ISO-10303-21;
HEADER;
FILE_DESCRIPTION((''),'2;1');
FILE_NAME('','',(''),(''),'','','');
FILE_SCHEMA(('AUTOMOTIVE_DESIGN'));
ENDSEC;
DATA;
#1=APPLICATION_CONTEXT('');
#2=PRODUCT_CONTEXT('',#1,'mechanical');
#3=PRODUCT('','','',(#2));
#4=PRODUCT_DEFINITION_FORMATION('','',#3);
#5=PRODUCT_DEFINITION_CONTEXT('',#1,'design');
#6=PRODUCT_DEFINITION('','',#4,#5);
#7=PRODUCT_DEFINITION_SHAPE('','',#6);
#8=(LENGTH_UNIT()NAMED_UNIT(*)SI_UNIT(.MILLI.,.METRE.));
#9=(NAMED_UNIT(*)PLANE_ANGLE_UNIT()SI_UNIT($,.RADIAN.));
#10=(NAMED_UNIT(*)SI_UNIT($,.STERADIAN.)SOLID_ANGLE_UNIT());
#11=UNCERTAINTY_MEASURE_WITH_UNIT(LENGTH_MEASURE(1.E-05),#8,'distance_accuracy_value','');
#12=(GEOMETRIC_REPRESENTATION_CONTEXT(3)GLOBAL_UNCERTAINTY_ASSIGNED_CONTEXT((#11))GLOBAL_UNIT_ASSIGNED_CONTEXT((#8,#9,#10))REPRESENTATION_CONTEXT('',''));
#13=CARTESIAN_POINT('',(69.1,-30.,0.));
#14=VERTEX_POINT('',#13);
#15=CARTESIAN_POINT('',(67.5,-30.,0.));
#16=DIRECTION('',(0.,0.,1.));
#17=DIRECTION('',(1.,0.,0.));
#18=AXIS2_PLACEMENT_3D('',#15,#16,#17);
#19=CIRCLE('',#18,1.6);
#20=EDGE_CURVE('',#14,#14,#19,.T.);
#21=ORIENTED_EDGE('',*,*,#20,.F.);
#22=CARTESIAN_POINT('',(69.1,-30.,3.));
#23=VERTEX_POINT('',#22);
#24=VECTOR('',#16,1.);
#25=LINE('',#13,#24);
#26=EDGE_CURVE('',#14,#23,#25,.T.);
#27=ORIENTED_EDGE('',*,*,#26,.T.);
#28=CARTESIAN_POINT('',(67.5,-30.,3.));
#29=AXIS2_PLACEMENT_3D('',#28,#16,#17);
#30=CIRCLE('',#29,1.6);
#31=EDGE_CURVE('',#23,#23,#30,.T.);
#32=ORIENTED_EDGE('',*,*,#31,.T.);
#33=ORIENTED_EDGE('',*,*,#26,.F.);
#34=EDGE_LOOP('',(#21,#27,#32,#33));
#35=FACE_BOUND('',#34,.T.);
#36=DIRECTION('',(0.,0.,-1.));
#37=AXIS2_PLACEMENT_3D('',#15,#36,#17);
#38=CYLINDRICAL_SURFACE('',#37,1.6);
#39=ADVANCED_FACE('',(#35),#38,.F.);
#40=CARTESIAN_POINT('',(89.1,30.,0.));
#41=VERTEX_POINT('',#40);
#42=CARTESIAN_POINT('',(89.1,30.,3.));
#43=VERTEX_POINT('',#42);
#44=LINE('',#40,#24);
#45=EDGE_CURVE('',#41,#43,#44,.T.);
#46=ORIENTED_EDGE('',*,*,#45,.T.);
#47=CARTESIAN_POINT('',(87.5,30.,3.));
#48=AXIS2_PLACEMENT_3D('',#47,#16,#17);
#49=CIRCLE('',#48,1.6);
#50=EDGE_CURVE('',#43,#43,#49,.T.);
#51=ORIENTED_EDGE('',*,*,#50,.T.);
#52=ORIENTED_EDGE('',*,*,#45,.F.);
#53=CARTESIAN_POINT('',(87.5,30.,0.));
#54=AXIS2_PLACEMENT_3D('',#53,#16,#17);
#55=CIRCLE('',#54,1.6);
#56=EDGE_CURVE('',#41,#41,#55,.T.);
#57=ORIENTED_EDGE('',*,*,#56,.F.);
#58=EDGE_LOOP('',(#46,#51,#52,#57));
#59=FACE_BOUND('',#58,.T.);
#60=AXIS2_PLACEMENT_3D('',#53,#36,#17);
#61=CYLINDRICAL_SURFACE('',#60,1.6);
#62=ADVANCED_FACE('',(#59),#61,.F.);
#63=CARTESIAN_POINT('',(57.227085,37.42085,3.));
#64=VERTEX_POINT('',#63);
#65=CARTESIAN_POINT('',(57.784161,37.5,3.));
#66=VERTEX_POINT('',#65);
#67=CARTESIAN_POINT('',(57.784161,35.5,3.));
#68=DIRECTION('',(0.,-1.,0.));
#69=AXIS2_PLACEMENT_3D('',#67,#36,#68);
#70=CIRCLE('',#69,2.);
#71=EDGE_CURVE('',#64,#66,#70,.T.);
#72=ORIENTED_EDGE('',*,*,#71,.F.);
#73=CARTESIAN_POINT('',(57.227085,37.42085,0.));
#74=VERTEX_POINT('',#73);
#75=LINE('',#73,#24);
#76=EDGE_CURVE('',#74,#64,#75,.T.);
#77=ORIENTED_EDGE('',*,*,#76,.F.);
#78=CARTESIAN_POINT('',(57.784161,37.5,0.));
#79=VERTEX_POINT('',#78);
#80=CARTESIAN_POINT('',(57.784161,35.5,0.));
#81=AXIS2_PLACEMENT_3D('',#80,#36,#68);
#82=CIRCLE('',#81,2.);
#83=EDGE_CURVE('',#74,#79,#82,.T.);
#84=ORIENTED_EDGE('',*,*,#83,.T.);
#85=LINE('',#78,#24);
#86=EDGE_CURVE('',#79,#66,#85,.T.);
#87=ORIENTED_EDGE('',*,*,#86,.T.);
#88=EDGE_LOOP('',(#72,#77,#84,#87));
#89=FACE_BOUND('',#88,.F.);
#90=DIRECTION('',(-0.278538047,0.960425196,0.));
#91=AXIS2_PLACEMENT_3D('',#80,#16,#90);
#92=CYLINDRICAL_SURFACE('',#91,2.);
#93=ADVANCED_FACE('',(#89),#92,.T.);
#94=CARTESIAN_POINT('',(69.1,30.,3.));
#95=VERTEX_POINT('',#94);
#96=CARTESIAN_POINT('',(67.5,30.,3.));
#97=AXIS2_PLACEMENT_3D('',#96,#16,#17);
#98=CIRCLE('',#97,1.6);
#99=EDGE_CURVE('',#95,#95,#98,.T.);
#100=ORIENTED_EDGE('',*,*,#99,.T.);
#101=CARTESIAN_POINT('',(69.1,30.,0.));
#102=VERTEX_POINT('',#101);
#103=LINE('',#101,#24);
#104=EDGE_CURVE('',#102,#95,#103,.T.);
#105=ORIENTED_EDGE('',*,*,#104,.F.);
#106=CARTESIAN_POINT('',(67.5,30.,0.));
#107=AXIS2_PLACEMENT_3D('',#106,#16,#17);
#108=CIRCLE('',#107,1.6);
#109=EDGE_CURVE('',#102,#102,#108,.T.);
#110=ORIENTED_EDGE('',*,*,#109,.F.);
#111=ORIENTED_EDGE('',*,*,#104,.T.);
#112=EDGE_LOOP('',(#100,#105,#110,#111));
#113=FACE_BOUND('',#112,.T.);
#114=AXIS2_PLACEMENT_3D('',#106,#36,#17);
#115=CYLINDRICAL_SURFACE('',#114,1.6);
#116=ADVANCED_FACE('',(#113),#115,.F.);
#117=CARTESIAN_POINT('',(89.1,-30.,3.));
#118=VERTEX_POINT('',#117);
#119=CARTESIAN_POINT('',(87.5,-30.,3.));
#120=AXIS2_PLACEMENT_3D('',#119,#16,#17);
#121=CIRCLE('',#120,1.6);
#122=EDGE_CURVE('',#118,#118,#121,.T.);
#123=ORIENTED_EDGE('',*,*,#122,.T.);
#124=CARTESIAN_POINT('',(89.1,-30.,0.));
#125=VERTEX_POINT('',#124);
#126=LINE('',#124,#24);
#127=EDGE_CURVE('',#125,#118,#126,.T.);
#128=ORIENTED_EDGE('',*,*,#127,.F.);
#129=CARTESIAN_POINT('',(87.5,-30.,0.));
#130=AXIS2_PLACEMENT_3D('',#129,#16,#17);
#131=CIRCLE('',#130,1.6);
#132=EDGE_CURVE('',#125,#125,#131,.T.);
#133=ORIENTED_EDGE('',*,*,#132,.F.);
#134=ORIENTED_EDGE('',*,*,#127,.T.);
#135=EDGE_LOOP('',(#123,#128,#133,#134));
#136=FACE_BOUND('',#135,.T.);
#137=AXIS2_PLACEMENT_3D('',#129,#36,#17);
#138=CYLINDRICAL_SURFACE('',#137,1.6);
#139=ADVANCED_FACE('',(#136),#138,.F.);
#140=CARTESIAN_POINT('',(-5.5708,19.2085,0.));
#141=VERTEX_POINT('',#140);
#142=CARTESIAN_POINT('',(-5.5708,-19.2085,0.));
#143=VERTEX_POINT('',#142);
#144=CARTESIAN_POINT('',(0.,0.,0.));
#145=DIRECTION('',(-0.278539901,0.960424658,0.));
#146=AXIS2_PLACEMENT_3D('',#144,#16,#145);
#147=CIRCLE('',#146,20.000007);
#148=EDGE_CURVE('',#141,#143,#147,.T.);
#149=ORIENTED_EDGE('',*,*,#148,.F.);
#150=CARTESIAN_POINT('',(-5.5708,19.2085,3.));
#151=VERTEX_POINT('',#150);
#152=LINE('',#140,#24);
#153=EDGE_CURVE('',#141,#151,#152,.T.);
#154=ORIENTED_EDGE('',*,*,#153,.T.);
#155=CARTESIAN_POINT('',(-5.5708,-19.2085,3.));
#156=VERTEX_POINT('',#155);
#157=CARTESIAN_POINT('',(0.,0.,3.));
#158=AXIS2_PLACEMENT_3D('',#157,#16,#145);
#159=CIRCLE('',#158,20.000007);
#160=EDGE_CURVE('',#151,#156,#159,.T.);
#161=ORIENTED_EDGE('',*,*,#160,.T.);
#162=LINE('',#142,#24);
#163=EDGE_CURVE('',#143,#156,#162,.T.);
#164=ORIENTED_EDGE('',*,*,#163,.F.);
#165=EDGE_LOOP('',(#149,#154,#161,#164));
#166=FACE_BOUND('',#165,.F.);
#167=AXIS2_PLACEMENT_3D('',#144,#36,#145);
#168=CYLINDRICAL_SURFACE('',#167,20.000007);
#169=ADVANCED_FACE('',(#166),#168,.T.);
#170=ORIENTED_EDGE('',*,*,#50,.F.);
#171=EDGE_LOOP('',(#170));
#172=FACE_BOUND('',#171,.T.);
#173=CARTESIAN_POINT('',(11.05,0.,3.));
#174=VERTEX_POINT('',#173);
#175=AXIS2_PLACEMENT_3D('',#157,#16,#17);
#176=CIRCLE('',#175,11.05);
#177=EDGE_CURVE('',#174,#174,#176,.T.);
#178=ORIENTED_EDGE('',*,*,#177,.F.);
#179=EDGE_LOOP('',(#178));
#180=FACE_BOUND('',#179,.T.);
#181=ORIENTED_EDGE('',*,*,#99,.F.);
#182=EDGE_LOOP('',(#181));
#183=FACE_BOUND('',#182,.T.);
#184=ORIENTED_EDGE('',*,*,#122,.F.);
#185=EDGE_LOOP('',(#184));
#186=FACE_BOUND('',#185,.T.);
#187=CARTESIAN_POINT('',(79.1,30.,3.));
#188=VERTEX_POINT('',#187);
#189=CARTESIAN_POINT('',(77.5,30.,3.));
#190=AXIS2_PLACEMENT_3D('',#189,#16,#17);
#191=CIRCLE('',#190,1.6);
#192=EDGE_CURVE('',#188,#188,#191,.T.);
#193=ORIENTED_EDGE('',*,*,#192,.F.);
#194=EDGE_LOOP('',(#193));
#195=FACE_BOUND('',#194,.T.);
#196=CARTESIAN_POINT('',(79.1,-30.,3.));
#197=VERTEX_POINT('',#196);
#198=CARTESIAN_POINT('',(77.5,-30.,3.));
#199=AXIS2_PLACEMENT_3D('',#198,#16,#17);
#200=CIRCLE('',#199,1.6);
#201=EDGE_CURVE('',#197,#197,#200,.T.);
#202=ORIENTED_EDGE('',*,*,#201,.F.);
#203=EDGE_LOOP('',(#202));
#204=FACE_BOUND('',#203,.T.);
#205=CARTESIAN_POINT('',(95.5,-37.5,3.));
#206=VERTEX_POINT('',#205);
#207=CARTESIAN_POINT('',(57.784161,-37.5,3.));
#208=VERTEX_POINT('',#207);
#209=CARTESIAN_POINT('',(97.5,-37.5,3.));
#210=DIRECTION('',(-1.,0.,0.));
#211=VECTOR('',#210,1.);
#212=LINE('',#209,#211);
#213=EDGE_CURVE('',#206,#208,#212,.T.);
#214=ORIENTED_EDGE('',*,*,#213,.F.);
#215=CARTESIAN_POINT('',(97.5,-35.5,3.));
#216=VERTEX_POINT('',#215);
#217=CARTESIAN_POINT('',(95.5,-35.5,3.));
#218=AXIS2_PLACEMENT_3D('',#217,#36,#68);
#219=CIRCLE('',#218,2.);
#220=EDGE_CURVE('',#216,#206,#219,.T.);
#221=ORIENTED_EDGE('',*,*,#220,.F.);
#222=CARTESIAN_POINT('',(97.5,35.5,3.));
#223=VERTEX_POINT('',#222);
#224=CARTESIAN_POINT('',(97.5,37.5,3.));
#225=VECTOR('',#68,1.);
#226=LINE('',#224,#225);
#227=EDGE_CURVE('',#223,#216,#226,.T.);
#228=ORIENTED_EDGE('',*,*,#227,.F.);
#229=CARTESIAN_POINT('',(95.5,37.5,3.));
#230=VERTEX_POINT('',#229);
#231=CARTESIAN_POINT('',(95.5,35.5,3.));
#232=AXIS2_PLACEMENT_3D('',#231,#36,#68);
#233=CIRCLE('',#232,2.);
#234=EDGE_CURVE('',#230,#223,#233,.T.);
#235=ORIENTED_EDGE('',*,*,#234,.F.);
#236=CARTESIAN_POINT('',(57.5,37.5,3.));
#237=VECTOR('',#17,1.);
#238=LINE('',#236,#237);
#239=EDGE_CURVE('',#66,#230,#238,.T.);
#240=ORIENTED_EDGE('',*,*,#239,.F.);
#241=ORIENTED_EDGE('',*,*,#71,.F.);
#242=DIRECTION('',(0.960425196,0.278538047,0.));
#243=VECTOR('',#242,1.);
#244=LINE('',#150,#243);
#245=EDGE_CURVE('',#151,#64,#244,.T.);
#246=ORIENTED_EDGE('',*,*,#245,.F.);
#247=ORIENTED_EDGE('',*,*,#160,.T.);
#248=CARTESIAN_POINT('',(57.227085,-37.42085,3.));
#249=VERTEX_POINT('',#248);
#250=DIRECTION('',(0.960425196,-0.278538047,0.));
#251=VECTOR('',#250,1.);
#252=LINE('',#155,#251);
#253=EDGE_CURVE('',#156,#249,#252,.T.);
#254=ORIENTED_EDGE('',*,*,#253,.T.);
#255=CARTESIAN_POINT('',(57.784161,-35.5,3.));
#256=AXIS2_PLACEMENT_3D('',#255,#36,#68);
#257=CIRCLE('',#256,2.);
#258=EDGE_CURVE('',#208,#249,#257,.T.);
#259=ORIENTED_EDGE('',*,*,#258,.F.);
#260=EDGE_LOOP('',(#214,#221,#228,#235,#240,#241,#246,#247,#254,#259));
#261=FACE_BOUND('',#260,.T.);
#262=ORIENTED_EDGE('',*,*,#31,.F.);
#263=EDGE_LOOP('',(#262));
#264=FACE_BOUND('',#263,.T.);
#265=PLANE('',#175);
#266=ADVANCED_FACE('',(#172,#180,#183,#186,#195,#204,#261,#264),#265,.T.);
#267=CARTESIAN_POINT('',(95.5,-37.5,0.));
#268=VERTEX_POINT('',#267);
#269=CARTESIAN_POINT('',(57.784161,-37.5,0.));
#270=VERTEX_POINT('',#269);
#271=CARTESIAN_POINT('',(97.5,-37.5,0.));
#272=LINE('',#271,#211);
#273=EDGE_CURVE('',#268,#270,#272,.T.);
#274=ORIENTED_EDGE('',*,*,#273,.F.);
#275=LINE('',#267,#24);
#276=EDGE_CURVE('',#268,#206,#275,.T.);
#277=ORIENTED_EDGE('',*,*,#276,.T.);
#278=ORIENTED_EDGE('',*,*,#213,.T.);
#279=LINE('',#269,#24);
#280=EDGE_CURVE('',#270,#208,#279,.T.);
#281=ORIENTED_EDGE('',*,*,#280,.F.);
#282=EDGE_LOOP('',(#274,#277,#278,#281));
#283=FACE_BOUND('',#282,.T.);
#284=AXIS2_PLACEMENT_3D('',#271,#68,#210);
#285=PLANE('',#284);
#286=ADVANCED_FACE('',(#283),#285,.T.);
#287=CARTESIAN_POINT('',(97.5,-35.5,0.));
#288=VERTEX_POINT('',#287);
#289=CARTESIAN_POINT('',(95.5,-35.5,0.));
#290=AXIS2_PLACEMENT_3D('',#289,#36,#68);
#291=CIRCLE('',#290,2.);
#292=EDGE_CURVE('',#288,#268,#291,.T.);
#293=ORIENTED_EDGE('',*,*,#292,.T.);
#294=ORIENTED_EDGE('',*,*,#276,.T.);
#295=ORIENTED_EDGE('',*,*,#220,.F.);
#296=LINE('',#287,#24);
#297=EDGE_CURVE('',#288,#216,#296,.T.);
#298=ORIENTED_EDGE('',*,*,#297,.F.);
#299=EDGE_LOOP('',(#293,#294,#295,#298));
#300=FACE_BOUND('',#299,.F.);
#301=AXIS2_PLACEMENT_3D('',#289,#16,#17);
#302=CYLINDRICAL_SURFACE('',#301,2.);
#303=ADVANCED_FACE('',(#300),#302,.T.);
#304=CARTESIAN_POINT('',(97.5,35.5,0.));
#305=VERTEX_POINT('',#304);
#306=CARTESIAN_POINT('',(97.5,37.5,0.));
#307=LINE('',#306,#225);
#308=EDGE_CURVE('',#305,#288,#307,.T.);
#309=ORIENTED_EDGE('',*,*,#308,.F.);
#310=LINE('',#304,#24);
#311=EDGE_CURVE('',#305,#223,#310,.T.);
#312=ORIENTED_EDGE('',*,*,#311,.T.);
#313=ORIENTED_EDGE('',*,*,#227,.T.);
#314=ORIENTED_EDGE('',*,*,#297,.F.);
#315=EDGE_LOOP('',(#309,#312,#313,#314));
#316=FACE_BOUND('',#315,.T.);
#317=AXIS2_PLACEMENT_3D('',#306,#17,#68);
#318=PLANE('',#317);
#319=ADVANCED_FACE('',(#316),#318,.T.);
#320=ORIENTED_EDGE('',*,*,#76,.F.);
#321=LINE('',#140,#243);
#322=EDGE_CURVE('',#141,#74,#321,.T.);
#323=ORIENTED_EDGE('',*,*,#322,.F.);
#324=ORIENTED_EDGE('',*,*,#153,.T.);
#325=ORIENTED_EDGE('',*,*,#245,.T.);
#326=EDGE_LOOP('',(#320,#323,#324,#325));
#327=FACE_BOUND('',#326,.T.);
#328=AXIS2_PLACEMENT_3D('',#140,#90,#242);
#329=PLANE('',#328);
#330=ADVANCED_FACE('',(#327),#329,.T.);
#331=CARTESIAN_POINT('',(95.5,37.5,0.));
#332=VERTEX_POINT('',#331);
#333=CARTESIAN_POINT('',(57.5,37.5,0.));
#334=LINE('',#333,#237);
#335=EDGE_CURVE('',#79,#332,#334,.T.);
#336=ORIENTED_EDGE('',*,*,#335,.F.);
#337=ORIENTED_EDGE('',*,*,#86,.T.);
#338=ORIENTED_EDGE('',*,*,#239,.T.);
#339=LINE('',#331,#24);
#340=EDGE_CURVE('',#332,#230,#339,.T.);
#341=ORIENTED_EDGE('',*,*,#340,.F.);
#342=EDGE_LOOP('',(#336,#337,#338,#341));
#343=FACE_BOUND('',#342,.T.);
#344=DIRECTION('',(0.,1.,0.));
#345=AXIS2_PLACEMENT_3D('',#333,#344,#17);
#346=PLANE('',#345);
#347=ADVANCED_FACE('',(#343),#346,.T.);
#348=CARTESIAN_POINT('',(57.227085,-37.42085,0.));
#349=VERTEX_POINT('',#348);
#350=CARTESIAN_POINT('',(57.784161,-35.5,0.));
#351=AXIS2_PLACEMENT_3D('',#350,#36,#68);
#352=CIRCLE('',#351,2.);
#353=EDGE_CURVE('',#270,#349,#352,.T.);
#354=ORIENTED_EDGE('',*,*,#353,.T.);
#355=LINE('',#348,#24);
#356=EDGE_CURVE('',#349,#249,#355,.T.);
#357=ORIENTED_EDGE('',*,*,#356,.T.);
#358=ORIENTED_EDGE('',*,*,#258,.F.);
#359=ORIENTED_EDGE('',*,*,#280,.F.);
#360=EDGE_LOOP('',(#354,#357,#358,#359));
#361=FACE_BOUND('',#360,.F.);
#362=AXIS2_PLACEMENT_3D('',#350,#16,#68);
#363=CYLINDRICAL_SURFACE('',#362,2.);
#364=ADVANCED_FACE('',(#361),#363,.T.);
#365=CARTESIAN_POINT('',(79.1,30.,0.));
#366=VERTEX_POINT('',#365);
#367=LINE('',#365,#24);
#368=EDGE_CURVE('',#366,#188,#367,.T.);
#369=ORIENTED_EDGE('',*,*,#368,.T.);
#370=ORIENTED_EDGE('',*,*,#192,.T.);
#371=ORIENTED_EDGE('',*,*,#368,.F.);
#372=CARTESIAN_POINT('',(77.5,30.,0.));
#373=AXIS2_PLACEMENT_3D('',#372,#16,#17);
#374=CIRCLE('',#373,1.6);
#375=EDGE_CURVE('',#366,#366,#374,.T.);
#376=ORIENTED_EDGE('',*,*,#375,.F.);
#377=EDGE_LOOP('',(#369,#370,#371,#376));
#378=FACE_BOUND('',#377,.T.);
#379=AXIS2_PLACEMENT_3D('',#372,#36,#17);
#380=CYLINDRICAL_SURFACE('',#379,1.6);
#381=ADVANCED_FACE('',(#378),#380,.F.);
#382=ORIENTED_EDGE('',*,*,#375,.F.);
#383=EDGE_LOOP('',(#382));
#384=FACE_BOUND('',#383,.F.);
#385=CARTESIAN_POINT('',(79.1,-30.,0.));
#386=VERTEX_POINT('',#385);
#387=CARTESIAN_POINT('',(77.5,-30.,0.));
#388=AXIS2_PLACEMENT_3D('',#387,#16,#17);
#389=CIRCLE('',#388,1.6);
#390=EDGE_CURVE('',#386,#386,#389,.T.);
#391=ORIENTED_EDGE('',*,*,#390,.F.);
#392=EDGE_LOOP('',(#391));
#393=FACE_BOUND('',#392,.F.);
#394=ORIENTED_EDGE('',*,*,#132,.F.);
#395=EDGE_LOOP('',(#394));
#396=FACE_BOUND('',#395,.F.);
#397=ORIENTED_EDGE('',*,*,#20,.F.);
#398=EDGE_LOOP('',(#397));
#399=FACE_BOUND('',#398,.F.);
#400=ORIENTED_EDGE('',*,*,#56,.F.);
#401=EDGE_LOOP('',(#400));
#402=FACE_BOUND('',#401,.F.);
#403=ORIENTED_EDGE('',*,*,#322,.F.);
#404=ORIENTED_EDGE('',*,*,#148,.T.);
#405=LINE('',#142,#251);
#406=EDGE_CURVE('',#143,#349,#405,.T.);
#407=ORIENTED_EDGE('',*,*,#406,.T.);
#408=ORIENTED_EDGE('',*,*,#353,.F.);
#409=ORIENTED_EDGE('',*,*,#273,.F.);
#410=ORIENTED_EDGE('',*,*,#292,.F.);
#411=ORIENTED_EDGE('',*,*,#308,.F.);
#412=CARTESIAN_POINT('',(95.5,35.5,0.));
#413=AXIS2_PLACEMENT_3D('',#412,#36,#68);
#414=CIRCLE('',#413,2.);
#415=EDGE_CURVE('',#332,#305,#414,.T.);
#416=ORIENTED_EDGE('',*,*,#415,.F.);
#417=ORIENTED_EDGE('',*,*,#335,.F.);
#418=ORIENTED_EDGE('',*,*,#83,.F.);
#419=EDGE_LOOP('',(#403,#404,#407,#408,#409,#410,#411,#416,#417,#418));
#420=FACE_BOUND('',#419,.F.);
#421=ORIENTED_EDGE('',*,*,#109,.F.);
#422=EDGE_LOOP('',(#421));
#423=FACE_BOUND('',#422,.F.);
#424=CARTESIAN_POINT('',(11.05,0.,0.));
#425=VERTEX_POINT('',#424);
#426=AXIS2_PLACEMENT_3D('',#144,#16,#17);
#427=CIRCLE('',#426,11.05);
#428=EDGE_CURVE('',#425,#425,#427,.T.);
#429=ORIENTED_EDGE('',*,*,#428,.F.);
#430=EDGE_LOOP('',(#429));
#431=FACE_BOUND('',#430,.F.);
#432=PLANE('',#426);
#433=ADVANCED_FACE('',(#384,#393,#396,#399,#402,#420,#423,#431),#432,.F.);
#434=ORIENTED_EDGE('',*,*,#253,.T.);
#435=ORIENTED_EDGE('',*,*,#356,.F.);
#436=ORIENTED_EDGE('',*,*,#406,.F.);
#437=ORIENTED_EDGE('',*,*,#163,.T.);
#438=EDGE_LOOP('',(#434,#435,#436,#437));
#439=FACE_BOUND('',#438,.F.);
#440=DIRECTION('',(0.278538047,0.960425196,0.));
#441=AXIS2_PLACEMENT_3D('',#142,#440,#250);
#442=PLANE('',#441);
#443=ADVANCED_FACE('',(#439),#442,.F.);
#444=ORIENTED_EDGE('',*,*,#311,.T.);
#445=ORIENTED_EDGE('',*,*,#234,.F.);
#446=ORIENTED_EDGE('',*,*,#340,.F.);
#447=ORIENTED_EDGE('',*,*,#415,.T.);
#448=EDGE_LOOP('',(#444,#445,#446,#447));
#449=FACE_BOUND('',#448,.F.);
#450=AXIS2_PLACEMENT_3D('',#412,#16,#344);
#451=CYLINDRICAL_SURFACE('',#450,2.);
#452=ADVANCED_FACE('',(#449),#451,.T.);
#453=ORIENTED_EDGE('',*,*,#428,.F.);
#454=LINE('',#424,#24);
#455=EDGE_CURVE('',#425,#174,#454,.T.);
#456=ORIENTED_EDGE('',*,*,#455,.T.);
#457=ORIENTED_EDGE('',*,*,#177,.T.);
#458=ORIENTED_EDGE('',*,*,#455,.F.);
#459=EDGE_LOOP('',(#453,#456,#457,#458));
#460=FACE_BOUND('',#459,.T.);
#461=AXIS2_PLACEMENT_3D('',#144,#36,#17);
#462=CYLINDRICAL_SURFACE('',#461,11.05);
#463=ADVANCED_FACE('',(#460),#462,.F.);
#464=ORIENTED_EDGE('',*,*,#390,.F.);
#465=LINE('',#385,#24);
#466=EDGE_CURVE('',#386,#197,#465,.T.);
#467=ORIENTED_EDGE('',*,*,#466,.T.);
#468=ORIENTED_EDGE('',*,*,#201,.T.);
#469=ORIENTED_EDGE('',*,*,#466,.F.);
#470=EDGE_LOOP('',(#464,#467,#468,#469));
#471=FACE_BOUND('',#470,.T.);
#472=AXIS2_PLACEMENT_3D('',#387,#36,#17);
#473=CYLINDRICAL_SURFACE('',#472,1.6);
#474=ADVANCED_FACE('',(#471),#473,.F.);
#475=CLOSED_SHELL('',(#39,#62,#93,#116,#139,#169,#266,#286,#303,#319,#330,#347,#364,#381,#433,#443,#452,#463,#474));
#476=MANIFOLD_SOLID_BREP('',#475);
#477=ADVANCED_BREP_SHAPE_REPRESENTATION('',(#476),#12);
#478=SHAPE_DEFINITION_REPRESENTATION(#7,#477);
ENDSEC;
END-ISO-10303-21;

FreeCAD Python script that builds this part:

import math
import FreeCAD as App
import Part
import Sketcher
from FreeCAD import Vector
Q = App.Units.Quantity


def edges_at(feature, points):
    """Names of the edges that pass closest to the given points."""
    edges = feature.Shape.Edges
    near = lambda p: min(range(len(edges)), key=lambda i: edges[i].distToShape(Part.Vertex(*p))[0])
    return sorted({f"Edge{near(p) + 1}" for p in points})

doc = App.newDocument("Part")
body = doc.addObject("PartDesign::Body", "Body")

sketch1 = body.newObject("Sketcher::SketchObject", "Sketch")
sketch1.AttachmentSupport = (doc.getObject("XY_Plane"), [""])
sketch1.MapMode = "FlatFace"
sketch1.addGeometry([
    Part.LineSegment(Vector(57.5, 37.5, 0), Vector(-5.6, 19.2, 0)),
    Part.ArcOfCircle(Part.Circle(Vector(0, 0, 0), Vector(0, 0, 1), 20), math.radians(106), math.radians(254)),
    Part.LineSegment(Vector(-5.6, -19.2, 0), Vector(57.5, -37.5, 0)),
    Part.LineSegment(Vector(57.5, -37.5, 0), Vector(97.5, -37.5, 0)),
    Part.LineSegment(Vector(97.5, -37.5, 0), Vector(97.5, 37.5, 0)),
    Part.LineSegment(Vector(97.5, 37.5, 0), Vector(57.5, 37.5, 0)),
    Part.Circle(Vector(67.5, -30, 0), Vector(0, 0, 1), 1.6),
    Part.Circle(Vector(77.5, -30, 0), Vector(0, 0, 1), 1.6),
    Part.Circle(Vector(87.5, -30, 0), Vector(0, 0, 1), 1.6),
    Part.Circle(Vector(0, 0, 0), Vector(0, 0, 1), 11.1),
    Part.Circle(Vector(67.5, 30, 0), Vector(0, 0, 1), 1.6),
    Part.Circle(Vector(77.5, 30, 0), Vector(0, 0, 1), 1.6),
    Part.Circle(Vector(87.5, 30, 0), Vector(0, 0, 1), 1.6),
], False)
sketch1.addConstraint([
    Sketcher.Constraint("Tangent", 0, 2, 1, 1),
    Sketcher.Constraint("Tangent", 1, 2, 2, 1),
    Sketcher.Constraint("Coincident", 2, 2, 3, 1),
    Sketcher.Constraint("Coincident", 3, 2, 4, 1),
    Sketcher.Constraint("Coincident", 4, 2, 5, 1),
    Sketcher.Constraint("Coincident", 5, 2, 0, 1),
    Sketcher.Constraint("Horizontal", 3),
    Sketcher.Constraint("Vertical", 4),
    Sketcher.Constraint("Horizontal", 5),
    Sketcher.Constraint("Coincident", 1, 3, -1, 1),
    Sketcher.Constraint("Coincident", 9, 3, -1, 1),
    Sketcher.Constraint("Equal", 6, 7),
    Sketcher.Constraint("Equal", 7, 8),
    Sketcher.Constraint("Equal", 8, 10),
    Sketcher.Constraint("Equal", 10, 11),
    Sketcher.Constraint("Equal", 11, 12),
    Sketcher.Constraint("Symmetric", 6, 3, 10, 3, -1),
    Sketcher.Constraint("Symmetric", 7, 3, 11, 3, -1),
    Sketcher.Constraint("Symmetric", 8, 3, 12, 3, -1),
    Sketcher.Constraint("Symmetric", 2, 2, 5, 2, -1),
    Sketcher.Constraint("Horizontal", 6, 3, 7, 3),
    Sketcher.Constraint("Horizontal", 7, 3, 8, 3),
    Sketcher.Constraint("Radius", 1, Q("20 mm")),
    Sketcher.Constraint("Diameter", 6, Q("3.2 mm")),
    Sketcher.Constraint("Diameter", 9, Q("22.1 mm")),
    Sketcher.Constraint("DistanceX", 6, 3, 7, 3, Q("10 mm")),
    Sketcher.Constraint("DistanceX", 7, 3, 8, 3, Q("10 mm")),
    Sketcher.Constraint("DistanceY", 6, 3, 10, 3, Q("60 mm")),
    Sketcher.Constraint("DistanceX", 2, 2, 6, 3, Q("10 mm")),
    Sketcher.Constraint("DistanceX", 8, 3, 3, 2, Q("10 mm")),
    Sketcher.Constraint("DistanceY", 2, 2, 6, 3, Q("7.5 mm")),
    Sketcher.Constraint("DistanceX", -1, 1, 6, 3, Q("67.5 mm")),
])
pad1 = body.newObject("PartDesign::Pad", "Pad")
pad1.Profile = sketch1
pad1.Length = 3
doc.recompute()

fillet = body.newObject("PartDesign::Fillet", "Fillet")
fillet.Base = (pad1, edges_at(pad1, [
    (57.5, 37.5, 1.5),
    (97.5, 37.5, 1.5),
    (97.5, -37.5, 1.5),
    (57.5, -37.5, 1.5),
]))
fillet.Radius = 2

doc.recompute()
